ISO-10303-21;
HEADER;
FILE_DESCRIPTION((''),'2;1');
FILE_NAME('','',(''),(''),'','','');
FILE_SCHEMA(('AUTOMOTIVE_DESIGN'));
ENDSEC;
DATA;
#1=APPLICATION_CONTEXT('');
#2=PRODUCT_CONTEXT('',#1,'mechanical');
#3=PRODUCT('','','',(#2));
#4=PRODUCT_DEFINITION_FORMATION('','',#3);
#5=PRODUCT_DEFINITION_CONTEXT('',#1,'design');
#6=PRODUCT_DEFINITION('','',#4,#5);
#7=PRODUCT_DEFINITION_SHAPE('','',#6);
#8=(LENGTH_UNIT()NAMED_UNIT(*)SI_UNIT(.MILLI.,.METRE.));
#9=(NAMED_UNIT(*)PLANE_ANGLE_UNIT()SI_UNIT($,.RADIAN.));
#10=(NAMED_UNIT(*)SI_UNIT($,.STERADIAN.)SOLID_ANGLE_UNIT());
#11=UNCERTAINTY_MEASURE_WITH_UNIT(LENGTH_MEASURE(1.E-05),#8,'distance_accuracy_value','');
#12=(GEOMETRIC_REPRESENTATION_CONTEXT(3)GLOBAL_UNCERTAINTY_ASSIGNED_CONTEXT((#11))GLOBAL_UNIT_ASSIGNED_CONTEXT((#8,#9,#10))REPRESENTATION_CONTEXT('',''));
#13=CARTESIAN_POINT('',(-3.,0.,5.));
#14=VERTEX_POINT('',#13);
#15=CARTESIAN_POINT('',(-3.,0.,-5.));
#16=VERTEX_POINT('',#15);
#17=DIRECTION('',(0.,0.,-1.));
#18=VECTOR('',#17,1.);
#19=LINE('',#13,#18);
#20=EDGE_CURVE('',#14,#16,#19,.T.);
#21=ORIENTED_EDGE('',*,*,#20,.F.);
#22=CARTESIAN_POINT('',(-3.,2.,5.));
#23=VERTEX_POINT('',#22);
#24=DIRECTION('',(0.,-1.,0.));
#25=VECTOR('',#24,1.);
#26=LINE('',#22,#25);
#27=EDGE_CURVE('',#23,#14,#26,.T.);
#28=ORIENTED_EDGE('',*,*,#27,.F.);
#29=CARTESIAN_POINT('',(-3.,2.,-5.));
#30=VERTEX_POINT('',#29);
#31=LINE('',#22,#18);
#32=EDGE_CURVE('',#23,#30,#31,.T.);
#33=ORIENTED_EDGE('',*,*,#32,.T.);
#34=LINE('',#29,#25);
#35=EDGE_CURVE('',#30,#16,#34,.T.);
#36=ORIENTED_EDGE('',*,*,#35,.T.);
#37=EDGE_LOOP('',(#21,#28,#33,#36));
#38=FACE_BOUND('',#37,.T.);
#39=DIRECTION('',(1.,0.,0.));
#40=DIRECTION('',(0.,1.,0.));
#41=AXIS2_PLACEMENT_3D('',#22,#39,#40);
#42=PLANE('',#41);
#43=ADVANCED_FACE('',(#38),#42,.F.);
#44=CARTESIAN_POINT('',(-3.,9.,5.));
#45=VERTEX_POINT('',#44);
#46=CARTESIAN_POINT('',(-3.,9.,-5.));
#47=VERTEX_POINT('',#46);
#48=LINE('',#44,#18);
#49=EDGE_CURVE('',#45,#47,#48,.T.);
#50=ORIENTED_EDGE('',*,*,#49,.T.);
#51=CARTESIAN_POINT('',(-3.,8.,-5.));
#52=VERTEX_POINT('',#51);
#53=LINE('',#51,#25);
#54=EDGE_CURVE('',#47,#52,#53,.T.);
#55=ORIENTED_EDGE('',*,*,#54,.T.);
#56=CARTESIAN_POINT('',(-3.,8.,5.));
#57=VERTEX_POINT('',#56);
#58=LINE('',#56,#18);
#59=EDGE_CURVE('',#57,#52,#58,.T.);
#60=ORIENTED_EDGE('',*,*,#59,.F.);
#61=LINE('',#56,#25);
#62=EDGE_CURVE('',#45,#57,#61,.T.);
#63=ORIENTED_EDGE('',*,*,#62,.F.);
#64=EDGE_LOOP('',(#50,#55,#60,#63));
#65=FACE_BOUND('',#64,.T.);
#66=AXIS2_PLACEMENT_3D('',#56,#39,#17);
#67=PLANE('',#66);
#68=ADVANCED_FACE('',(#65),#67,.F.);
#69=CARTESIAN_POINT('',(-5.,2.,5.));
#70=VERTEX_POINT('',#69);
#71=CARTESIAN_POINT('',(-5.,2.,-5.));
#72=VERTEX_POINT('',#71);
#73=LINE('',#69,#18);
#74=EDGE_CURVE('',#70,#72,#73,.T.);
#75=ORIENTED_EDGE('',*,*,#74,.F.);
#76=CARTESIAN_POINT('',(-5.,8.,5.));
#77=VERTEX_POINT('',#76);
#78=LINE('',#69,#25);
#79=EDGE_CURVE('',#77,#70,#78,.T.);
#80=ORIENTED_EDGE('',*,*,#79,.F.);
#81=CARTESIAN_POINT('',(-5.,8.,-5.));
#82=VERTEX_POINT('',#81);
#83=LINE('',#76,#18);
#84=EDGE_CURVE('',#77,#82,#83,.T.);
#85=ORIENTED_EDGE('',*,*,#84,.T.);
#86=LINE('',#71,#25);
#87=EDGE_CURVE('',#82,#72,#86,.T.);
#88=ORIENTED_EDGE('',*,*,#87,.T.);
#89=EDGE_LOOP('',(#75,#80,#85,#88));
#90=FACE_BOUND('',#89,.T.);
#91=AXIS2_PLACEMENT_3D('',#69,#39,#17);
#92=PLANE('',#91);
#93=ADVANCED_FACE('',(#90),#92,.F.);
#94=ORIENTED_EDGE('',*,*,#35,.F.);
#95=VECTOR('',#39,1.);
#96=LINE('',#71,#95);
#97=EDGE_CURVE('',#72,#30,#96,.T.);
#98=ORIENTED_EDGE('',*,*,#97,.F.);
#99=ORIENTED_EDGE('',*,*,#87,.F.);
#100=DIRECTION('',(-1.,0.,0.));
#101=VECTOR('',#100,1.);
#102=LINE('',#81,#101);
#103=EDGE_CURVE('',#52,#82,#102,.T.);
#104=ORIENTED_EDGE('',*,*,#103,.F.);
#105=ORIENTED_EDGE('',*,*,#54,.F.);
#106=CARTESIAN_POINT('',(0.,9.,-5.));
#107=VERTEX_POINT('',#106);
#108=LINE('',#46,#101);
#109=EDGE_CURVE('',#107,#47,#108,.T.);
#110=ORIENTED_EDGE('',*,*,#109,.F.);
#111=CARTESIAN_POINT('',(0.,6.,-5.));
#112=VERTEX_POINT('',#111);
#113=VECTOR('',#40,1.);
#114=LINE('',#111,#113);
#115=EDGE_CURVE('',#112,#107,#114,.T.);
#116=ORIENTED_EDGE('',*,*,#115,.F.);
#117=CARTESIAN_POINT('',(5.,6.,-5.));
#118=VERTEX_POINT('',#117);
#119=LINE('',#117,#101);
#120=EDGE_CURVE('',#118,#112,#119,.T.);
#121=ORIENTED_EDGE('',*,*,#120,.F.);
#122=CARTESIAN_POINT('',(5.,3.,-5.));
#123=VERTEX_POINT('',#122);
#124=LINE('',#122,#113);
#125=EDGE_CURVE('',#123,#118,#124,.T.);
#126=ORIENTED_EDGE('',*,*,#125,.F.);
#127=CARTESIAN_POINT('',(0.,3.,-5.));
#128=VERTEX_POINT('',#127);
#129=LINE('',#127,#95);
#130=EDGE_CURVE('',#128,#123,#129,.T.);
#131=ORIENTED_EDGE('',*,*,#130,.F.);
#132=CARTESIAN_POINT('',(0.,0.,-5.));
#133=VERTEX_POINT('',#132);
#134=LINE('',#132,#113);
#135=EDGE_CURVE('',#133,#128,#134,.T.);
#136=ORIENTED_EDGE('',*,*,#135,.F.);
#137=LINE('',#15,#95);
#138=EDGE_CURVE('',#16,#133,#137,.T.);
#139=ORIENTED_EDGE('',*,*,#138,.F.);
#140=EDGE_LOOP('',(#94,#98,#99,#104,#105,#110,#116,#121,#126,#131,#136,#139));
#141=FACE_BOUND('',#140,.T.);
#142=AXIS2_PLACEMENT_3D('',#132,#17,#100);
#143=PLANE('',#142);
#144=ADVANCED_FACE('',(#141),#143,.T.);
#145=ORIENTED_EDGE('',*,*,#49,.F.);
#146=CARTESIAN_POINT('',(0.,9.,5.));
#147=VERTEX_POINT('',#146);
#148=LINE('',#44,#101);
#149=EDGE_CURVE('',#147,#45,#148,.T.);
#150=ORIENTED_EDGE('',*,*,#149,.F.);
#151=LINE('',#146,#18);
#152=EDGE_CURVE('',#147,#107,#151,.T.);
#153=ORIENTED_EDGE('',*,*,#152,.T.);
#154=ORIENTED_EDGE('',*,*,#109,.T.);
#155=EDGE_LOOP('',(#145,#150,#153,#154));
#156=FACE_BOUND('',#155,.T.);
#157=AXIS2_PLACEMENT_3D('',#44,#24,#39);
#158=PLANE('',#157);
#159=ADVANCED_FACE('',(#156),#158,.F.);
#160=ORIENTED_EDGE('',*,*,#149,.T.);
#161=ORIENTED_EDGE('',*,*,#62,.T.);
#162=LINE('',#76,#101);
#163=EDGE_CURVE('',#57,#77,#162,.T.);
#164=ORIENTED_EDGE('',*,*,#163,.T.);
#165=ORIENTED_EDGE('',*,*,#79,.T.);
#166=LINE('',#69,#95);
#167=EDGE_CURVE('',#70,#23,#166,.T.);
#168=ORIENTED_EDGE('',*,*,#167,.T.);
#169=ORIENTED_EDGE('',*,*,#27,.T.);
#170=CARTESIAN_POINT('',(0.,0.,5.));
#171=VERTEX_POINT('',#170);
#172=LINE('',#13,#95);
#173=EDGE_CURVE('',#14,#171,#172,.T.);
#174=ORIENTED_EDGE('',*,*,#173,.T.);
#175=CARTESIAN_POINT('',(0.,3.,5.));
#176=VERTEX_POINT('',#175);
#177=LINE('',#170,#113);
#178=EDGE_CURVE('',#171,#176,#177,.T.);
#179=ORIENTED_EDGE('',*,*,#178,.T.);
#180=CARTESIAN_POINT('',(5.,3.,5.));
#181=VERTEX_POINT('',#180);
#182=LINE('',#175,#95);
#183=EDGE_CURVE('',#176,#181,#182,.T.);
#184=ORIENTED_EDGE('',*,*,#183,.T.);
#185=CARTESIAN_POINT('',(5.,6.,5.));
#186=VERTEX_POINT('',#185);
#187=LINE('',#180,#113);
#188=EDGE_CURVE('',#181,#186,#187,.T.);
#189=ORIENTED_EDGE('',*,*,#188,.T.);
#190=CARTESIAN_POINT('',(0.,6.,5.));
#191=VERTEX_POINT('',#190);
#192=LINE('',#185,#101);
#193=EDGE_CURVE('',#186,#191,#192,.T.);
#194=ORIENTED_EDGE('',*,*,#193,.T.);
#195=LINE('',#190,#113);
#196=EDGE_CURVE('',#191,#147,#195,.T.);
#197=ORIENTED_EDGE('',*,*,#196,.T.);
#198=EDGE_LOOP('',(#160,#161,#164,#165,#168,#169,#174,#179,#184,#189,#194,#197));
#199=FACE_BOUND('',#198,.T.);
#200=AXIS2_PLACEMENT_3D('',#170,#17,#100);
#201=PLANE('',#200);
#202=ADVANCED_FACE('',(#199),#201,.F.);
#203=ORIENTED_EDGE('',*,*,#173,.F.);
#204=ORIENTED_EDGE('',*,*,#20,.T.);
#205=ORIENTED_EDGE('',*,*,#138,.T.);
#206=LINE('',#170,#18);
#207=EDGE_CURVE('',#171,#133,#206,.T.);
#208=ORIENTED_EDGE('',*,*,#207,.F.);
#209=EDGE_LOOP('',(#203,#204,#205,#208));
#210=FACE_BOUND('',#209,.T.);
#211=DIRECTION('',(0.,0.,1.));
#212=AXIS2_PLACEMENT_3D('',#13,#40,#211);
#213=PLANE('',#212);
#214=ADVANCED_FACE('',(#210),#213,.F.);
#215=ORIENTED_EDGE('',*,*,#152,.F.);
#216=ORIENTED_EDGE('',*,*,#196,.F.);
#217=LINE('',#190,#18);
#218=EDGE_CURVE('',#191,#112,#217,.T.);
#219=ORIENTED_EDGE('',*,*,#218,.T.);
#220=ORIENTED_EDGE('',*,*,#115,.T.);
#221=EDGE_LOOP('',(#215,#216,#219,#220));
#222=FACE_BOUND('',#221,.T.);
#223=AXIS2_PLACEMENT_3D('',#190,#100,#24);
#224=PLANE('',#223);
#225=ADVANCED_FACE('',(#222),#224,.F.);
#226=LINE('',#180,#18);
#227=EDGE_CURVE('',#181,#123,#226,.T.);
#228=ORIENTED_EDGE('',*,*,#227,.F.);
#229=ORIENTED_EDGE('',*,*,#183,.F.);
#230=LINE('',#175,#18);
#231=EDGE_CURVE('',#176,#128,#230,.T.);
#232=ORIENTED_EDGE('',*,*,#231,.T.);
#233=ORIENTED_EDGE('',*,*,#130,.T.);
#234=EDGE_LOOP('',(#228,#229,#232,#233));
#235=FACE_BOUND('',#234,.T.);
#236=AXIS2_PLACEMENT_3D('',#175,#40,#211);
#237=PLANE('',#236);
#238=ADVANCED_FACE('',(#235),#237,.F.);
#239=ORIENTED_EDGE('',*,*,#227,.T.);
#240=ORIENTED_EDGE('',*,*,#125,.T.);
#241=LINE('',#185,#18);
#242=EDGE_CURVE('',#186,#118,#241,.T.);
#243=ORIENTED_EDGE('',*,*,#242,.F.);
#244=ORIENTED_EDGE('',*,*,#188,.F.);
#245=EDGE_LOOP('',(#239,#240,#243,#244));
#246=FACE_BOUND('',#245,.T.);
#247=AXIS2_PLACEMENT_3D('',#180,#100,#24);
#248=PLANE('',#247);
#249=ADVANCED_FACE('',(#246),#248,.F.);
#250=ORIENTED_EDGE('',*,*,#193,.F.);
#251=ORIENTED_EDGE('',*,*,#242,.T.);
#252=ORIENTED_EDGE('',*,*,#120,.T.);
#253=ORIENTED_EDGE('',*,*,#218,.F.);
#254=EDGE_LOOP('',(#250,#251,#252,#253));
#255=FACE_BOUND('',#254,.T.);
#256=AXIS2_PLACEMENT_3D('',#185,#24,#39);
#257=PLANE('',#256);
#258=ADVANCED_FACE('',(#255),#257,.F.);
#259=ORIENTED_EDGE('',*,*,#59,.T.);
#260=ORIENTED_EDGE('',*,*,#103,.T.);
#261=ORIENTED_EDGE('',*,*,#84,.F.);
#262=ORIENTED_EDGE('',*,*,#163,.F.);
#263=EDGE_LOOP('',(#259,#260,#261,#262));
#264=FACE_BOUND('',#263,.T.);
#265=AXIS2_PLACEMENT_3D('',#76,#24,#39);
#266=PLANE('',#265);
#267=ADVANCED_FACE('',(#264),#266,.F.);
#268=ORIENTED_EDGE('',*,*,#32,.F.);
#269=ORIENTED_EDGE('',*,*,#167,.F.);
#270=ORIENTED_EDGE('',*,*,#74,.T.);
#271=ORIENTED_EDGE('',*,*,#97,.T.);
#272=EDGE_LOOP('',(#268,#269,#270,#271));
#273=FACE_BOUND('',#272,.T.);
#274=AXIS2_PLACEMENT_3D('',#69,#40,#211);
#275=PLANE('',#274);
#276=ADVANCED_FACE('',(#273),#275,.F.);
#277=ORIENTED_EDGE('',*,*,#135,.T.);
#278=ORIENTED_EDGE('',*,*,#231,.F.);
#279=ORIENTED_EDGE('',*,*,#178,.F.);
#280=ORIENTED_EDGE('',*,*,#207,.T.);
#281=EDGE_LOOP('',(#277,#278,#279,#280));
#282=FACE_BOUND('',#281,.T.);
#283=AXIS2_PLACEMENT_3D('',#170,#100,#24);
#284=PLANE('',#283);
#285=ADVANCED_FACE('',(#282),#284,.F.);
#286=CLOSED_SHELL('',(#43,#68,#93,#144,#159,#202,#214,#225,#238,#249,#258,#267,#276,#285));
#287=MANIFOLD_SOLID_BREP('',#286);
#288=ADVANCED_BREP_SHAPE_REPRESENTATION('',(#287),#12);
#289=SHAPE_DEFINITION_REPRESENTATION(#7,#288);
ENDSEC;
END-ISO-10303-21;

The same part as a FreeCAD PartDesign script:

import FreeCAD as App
import Part
import Sketcher

doc = App.newDocument("Part")
params = doc.addObject("Spreadsheet::Sheet", "Params")
for row, (alias, value) in enumerate([
    ("sketch1_width", "2 mm"),
    ("sketch1_width2", "3 mm"),
    ("sketch1_width3", "5 mm"),
    ("sketch1_height", "6 mm"),
    ("pad1_length", "10 mm"),
], start=1):
    params.set(f"A{row}", alias)
    params.set(f"B{row}", "=" + value)
    params.setAlias(f"B{row}", alias)

body = doc.addObject("PartDesign::Body", "Body")

# Sketch on XY plane
sketch1 = doc.addObject("Sketcher::SketchObject", "Sketch")
body.addObject(sketch1)
sketch1.AttachmentSupport = (doc.XY_Plane, [""])
sketch1.MapMode = "FlatFace"
sketch1.addGeometry([
    Part.LineSegment(App.Vector(-5, 8, 0), App.Vector(-5, 2, 0)),  # 0
    Part.LineSegment(App.Vector(-5, 2, 0), App.Vector(-3, 2, 0)),  # 1
    Part.LineSegment(App.Vector(-3, 2, 0), App.Vector(-3, 0, 0)),  # 2
    Part.LineSegment(App.Vector(-3, 0, 0), App.Vector(0, 0, 0)),  # 3
    Part.LineSegment(App.Vector(0, 0, 0), App.Vector(0, 3, 0)),  # 4
    Part.LineSegment(App.Vector(0, 3, 0), App.Vector(5, 3, 0)),  # 5
    Part.LineSegment(App.Vector(5, 3, 0), App.Vector(5, 6, 0)),  # 6
    Part.LineSegment(App.Vector(5, 6, 0), App.Vector(0, 6, 0)),  # 7
    Part.LineSegment(App.Vector(0, 6, 0), App.Vector(0, 9, 0)),  # 8
    Part.LineSegment(App.Vector(0, 9, 0), App.Vector(-3, 9, 0)),  # 9
    Part.LineSegment(App.Vector(-3, 9, 0), App.Vector(-3, 8, 0)),  # 10
    Part.LineSegment(App.Vector(-3, 8, 0), App.Vector(-5, 8, 0)),  # 11
], False)
sketch1.addConstraint([
    Sketcher.Constraint("Coincident", 0, 2, 1, 1),
    Sketcher.Constraint("Coincident", 1, 2, 2, 1),
    Sketcher.Constraint("Coincident", 2, 2, 3, 1),
    Sketcher.Constraint("Coincident", 3, 2, 4, 1),
    Sketcher.Constraint("Coincident", 4, 2, 5, 1),
    Sketcher.Constraint("Coincident", 5, 2, 6, 1),
    Sketcher.Constraint("Coincident", 6, 2, 7, 1),
    Sketcher.Constraint("Coincident", 7, 2, 8, 1),
    Sketcher.Constraint("Coincident", 8, 2, 9, 1),
    Sketcher.Constraint("Coincident", 9, 2, 10, 1),
    Sketcher.Constraint("Coincident", 10, 2, 11, 1),
    Sketcher.Constraint("Coincident", 11, 2, 0, 1),
    Sketcher.Constraint("Vertical", 0),
    Sketcher.Constraint("Horizontal", 1),
    Sketcher.Constraint("Vertical", 2),
    Sketcher.Constraint("Horizontal", 3),
    Sketcher.Constraint("Vertical", 4),
    Sketcher.Constraint("Horizontal", 5),
    Sketcher.Constraint("Vertical", 6),
    Sketcher.Constraint("Horizontal", 7),
    Sketcher.Constraint("Vertical", 8),
    Sketcher.Constraint("Horizontal", 9),
    Sketcher.Constraint("Vertical", 10),
    Sketcher.Constraint("Horizontal", 11),
    Sketcher.Constraint("Coincident", 3, 2, -1, 1),
    Sketcher.Constraint("PointOnObject", 7, 2, -2),
    Sketcher.Constraint("Vertical", 2, 2, 9, 2),
    Sketcher.Constraint("Equal", 11, 2),
    Sketcher.Constraint("Equal", 9, 4),
    Sketcher.Constraint("Equal", 4, 6),
    Sketcher.Constraint("Equal", 6, 8),
    Sketcher.Constraint("DistanceX", 1, 1, 1, 2, 2.0),
    Sketcher.Constraint("DistanceX", 3, 1, 3, 2, 3.0),
    Sketcher.Constraint("DistanceX", 5, 1, 5, 2, 5.0),
    Sketcher.Constraint("DistanceY", 0, 2, 0, 1, 6.0),
])
sketch1.setExpression("Constraints[31]", "Params.sketch1_width")
sketch1.setExpression("Constraints[32]", "Params.sketch1_width2")
sketch1.setExpression("Constraints[33]", "Params.sketch1_width3")
sketch1.setExpression("Constraints[34]", "Params.sketch1_height")
pad1 = doc.addObject("PartDesign::Pad", "Pad")
body.addObject(pad1)
pad1.Profile = sketch1
pad1.setExpression("Length", "Params.pad1_length")
pad1.Midplane = True

doc.recompute()
